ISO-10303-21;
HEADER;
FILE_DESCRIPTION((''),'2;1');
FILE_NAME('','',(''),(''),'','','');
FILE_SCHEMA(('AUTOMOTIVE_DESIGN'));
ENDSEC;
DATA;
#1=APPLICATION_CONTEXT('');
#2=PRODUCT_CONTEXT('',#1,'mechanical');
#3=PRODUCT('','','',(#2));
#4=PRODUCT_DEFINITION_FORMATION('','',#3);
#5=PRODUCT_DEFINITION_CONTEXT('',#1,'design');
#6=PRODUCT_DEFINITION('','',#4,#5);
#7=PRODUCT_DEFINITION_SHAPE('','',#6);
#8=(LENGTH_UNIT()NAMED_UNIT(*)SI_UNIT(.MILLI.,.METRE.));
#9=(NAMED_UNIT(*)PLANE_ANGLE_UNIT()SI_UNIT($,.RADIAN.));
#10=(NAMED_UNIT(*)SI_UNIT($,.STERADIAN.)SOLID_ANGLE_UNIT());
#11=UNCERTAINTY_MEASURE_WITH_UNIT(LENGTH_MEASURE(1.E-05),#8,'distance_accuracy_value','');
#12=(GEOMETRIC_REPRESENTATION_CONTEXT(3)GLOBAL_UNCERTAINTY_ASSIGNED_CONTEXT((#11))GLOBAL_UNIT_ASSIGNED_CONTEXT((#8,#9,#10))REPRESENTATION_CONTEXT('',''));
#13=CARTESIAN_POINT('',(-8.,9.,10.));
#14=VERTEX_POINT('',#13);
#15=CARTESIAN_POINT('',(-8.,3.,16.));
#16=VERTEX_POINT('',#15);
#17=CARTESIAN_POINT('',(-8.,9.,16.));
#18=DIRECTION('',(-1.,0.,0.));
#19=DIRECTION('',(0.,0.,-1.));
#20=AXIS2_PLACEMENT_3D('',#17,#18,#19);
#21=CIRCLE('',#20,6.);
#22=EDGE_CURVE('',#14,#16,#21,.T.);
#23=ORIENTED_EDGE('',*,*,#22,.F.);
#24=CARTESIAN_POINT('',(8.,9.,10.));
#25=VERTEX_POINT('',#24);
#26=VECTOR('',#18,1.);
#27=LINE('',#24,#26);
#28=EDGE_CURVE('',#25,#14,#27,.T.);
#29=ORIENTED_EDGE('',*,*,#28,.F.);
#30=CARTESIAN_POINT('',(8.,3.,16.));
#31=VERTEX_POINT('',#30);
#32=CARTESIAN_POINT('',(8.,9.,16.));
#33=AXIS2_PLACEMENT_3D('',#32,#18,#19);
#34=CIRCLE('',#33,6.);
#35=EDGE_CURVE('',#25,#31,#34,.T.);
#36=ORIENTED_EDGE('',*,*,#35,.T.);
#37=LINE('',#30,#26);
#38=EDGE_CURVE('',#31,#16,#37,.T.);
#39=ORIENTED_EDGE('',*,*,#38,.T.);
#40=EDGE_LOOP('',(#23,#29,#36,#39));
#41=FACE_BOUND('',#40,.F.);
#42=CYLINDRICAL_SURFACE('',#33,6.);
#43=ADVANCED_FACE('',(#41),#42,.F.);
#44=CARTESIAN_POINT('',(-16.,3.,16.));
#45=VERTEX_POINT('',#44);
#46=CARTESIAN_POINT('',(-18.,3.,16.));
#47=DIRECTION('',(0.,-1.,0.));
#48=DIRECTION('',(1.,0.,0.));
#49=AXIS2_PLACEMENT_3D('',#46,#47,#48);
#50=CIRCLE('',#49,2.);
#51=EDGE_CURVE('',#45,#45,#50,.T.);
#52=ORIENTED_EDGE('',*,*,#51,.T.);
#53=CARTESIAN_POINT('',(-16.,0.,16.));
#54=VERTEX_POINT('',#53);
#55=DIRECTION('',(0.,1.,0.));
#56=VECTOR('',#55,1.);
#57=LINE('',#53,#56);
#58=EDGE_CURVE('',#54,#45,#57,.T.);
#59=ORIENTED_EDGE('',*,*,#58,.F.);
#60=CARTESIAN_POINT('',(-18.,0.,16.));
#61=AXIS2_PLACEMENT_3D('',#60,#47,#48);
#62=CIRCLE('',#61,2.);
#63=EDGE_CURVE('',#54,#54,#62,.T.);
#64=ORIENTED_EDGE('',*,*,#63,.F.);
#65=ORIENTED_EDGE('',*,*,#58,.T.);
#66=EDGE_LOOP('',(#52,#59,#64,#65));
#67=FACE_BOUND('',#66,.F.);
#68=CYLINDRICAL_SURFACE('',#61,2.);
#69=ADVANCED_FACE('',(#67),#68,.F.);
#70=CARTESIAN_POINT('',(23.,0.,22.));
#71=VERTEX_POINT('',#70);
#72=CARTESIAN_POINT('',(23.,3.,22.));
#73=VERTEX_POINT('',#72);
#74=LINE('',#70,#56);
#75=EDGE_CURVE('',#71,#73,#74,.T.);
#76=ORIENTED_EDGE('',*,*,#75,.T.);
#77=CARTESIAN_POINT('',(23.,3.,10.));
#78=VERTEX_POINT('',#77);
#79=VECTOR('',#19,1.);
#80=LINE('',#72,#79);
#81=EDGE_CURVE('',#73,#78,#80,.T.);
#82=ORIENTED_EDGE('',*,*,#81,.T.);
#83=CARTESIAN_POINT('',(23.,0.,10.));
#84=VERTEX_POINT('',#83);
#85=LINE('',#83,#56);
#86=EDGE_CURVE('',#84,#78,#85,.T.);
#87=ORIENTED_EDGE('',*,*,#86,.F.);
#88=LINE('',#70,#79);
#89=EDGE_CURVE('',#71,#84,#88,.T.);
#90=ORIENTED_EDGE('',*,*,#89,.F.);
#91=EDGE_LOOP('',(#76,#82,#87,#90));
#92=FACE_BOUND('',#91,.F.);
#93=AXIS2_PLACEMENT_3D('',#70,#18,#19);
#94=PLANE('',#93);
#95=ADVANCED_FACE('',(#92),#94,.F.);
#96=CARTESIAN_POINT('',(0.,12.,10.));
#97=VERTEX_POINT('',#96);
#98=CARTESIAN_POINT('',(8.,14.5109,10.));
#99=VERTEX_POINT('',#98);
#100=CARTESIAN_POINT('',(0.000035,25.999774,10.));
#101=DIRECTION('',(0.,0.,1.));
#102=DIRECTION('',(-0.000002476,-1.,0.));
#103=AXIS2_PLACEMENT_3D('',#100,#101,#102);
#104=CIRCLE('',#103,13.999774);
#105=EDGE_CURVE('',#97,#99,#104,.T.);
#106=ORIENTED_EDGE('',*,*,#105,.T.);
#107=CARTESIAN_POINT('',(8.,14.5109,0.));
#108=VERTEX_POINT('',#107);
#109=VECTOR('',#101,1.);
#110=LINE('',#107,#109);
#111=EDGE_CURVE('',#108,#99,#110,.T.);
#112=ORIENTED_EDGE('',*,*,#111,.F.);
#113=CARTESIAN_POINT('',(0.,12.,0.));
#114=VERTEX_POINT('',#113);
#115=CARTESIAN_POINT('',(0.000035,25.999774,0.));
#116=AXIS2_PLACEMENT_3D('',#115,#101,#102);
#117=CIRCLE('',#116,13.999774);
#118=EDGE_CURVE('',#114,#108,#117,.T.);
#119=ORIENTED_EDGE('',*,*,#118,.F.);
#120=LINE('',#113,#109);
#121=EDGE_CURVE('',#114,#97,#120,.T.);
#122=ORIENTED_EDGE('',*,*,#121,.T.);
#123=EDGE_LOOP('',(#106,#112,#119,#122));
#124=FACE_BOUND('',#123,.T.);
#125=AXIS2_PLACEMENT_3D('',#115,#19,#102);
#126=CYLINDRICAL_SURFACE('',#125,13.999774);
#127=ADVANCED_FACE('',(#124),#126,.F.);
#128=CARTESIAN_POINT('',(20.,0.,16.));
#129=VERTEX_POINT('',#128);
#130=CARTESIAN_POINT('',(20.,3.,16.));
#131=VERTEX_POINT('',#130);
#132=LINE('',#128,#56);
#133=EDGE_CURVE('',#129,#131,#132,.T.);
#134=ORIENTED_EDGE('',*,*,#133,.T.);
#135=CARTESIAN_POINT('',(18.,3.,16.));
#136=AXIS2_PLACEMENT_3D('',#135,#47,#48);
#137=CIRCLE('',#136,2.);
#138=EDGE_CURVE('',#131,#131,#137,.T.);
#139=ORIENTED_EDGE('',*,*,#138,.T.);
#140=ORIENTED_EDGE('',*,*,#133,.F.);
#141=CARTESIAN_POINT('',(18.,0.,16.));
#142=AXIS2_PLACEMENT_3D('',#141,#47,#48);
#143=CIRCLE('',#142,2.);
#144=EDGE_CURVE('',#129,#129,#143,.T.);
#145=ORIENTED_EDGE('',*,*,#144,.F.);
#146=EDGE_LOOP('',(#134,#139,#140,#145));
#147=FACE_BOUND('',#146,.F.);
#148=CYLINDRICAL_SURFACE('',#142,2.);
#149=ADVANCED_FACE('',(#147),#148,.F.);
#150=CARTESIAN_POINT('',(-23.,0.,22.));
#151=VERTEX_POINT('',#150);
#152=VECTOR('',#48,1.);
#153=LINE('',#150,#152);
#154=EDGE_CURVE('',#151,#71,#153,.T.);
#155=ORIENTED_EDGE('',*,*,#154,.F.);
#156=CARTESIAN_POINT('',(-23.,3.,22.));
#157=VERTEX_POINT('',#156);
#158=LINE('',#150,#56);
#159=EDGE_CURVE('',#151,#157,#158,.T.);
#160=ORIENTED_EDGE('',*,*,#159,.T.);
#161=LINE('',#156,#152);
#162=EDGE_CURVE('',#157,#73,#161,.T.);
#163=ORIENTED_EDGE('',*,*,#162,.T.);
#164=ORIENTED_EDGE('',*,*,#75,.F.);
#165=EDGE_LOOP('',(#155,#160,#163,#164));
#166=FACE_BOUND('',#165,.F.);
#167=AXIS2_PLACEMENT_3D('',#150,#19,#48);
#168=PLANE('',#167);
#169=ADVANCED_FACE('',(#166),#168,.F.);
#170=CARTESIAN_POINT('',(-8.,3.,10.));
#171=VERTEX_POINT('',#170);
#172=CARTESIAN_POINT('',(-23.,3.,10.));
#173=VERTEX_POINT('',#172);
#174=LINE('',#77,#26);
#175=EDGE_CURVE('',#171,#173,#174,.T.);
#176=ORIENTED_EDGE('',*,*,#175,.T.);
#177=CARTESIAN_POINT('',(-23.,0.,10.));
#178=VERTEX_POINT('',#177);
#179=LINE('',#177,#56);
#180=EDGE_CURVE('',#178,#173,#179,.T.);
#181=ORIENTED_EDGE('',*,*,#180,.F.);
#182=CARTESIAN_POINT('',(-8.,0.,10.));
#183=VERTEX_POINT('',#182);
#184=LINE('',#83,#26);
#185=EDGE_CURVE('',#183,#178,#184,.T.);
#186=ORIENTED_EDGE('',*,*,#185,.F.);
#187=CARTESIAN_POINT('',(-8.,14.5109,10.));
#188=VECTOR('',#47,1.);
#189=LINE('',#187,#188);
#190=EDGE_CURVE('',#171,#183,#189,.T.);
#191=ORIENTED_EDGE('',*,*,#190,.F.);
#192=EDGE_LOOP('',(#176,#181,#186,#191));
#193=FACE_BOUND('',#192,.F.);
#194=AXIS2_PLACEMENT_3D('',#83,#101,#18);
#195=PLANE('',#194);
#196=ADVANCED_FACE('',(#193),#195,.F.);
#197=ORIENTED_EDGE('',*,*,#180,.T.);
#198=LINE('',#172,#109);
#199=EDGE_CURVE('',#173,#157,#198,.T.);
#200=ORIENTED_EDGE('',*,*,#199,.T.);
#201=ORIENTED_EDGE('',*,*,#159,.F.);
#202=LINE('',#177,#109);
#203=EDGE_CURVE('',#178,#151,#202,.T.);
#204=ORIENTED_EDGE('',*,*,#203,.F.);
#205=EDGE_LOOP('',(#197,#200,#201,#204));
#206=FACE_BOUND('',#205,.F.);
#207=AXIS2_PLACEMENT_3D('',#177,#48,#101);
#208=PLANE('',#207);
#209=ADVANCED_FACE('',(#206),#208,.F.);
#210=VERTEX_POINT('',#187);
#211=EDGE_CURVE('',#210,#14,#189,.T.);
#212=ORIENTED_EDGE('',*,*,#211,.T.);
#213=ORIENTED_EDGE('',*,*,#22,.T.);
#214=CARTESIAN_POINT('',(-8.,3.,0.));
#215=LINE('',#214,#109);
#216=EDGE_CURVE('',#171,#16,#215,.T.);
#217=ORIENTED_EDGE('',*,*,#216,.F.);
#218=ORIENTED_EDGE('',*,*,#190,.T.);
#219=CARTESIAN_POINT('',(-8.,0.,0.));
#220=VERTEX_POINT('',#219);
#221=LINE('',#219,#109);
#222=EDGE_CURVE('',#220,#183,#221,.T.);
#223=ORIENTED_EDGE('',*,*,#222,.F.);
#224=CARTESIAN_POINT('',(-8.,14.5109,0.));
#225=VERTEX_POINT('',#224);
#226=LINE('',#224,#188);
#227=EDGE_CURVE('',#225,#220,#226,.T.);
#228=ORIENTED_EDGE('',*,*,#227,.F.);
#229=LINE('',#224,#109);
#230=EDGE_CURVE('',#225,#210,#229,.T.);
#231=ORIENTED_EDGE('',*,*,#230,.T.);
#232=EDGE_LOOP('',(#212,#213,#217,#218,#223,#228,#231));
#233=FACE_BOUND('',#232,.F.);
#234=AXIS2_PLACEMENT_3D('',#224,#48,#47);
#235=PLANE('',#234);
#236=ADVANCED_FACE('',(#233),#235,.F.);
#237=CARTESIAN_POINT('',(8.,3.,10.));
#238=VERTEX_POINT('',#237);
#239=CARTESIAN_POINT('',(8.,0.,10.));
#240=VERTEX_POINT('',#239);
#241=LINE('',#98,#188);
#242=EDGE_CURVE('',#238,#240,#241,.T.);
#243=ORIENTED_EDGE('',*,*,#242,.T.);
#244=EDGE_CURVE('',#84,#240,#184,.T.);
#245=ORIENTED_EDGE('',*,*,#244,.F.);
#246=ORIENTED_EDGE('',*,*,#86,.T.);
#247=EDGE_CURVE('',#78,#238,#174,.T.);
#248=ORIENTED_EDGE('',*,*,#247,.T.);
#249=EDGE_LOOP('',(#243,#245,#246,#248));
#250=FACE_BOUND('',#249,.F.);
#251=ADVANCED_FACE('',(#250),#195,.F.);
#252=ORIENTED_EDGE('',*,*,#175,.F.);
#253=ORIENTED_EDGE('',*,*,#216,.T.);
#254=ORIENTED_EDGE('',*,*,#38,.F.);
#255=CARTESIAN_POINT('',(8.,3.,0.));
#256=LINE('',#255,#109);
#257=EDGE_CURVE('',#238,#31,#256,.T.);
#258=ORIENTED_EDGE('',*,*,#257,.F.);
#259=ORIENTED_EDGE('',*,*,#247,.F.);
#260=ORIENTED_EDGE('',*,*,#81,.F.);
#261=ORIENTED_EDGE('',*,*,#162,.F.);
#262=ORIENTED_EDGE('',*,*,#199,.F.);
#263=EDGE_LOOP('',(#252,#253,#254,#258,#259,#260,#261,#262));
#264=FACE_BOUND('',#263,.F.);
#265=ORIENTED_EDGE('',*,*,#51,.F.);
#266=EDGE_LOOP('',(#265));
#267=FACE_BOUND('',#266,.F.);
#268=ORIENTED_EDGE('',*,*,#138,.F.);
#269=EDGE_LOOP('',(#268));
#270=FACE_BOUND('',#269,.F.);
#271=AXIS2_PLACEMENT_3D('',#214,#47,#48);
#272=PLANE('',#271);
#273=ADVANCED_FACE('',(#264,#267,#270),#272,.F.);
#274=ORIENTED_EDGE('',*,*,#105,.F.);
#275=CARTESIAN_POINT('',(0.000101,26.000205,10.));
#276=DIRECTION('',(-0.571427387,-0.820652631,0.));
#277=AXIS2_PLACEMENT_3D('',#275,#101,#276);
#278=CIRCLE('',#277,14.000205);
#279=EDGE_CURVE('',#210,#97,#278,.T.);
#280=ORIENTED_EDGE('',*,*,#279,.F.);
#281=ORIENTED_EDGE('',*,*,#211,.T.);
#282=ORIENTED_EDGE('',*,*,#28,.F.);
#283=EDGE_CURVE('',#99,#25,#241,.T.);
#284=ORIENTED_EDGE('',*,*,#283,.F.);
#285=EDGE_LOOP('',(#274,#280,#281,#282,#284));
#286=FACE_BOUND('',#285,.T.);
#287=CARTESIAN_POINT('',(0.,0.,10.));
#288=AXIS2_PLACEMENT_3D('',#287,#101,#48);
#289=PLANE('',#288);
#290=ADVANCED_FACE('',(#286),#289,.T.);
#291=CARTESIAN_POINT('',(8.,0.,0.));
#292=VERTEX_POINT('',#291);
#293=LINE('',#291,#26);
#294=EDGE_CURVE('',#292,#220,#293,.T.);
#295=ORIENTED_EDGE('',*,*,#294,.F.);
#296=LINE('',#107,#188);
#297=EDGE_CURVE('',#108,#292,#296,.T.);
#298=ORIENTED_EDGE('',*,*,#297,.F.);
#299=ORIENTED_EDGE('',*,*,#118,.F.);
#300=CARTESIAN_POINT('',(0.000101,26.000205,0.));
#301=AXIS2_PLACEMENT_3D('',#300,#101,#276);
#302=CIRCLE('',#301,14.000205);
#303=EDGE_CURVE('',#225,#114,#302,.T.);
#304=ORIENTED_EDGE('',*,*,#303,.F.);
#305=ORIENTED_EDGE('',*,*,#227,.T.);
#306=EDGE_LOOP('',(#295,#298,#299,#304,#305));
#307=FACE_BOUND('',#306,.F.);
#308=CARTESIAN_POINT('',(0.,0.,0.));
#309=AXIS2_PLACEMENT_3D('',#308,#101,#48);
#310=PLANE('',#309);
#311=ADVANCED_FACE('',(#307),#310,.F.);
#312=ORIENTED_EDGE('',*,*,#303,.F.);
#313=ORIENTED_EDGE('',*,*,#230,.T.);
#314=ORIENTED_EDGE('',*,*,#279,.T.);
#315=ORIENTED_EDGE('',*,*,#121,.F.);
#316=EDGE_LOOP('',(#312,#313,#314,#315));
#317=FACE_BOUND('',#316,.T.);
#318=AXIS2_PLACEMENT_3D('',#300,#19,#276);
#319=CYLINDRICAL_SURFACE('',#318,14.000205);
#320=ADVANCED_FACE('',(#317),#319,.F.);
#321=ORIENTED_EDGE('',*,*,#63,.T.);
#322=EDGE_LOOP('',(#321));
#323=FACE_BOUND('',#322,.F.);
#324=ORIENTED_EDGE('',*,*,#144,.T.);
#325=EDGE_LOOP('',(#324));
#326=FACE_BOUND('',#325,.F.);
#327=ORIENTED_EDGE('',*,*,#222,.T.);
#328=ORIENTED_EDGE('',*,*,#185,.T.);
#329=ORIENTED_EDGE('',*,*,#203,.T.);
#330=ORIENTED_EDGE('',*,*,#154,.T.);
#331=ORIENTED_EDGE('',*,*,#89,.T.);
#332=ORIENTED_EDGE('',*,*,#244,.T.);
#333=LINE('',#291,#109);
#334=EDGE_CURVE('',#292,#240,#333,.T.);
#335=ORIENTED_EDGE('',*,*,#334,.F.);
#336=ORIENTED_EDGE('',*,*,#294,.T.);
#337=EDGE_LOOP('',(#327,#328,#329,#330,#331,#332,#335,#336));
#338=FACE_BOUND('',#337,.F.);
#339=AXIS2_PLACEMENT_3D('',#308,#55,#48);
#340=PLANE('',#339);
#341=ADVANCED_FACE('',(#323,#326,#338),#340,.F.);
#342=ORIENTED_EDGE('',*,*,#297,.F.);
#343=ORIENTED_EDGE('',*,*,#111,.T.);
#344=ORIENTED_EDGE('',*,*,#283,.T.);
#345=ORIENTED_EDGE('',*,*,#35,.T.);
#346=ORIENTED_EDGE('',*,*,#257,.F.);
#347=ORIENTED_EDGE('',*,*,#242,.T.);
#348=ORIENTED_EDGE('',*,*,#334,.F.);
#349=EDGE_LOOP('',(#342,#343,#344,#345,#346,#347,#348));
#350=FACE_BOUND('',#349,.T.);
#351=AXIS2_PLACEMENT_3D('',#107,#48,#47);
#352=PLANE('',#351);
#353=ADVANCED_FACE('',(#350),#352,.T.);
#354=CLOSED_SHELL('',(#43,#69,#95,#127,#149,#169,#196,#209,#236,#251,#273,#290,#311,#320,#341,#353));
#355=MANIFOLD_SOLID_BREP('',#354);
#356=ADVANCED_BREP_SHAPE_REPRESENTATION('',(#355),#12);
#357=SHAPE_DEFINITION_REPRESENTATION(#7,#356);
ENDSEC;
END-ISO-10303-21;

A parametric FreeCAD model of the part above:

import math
import FreeCAD as App
import Part
import Sketcher

V = App.Vector


def edges_at(feature, points):
    """Names of the edges that pass closest to the given points."""
    edges = feature.Shape.Edges
    near = lambda p: min(range(len(edges)), key=lambda i: edges[i].distToShape(Part.Vertex(*p))[0])
    return sorted({f"Edge{near(p) + 1}" for p in points})


def add_polygon(sketch, points):
    """Adds a closed chain of lines whose ends are joined by coincident constraints."""
    first, n = sketch.GeometryCount, len(points)
    for a, b in zip(points, points[1:] + points[:1]):
        sketch.addGeometry(Part.LineSegment(App.Vector(*a, 0), App.Vector(*b, 0)), False)
    for i in range(n):
        sketch.addConstraint(Sketcher.Constraint("Coincident", first + i, 2, first + (i + 1) % n, 1))

doc = App.newDocument("Part")
body = doc.addObject("PartDesign::Body", "Body")

sketch1 = body.newObject("Sketcher::SketchObject", "Sketch")
sketch1.AttachmentSupport = (doc.getObject("XY_Plane"), [""])
sketch1.MapMode = "FlatFace"
sketch1.addGeometry([
    Part.ArcOfCircle(Part.Circle(V(0, 26, 0), V(0, 0, 1), 14), math.radians(-90), math.radians(-55)),
    Part.ArcOfCircle(Part.Circle(V(0, 26, 0), V(0, 0, 1), 14), math.radians(-125), math.radians(-90)),
    Part.LineSegment(V(-8, 15, 0), V(-8, 0, 0)),
    Part.LineSegment(V(-8, 0, 0), V(8, 0, 0)),
    Part.LineSegment(V(8, 0, 0), V(8, 15, 0)),
], False)
sketch1.addConstraint([
    Sketcher.Constraint("Tangent", 0, 1, 1, 2),
    Sketcher.Constraint("Coincident", 1, 1, 2, 1),
    Sketcher.Constraint("Coincident", 2, 2, 3, 1),
    Sketcher.Constraint("Coincident", 3, 2, 4, 1),
    Sketcher.Constraint("Coincident", 4, 2, 0, 2),
    Sketcher.Constraint("Vertical", 2),
    Sketcher.Constraint("Horizontal", 3),
    Sketcher.Constraint("Vertical", 4),
    Sketcher.Constraint("Equal", 0, 1),
    Sketcher.Constraint("Symmetric", 2, 2, 3, 2, -1, 1),
    Sketcher.Constraint("PointOnObject", 0, 3, -2),
    Sketcher.Constraint("PointOnObject", 0, 1, -2),
    Sketcher.Constraint("Radius", 0, 14.0),
    Sketcher.Constraint("DistanceY", -1, 1, 0, 3, 26.0),
    Sketcher.Constraint("DistanceX", 1, 1, -1, 1, 8.0),
])
pad1 = body.newObject("PartDesign::Pad", "Pad")
pad1.Profile = sketch1
pad1.Length = 10

sketch2 = body.newObject("Sketcher::SketchObject", "Sketch001")
sketch2.AttachmentSupport = (doc.getObject("XZ_Plane"), [""])
sketch2.MapMode = "FlatFace"
add_polygon(sketch2, [(23, 22), (-23, 22), (-23, 10), (23, 10)])
sketch2.addGeometry(Part.Circle(V(-18, 16, 0), V(0, 0, 1), 2), False)
sketch2.addGeometry(Part.Circle(V(18, 16, 0), V(0, 0, 1), 2), False)
sketch2.addConstraint([
    Sketcher.Constraint("Horizontal", 0),
    Sketcher.Constraint("Vertical", 1),
    Sketcher.Constraint("Horizontal", 2),
    Sketcher.Constraint("Vertical", 3),
    Sketcher.Constraint("Equal", 4, 5),
    Sketcher.Constraint("Symmetric", 4, 3, 5, 3, -2),
    Sketcher.Constraint("Diameter", 4, 4.0),
    Sketcher.Constraint("DistanceX", 0, 2, 0, 1, 46.0),
    Sketcher.Constraint("DistanceX", 4, 3, 5, 3, 36.0),
    Sketcher.Constraint("DistanceY", 4, 3, 0, 2, 6.0),
    Sketcher.Constraint("DistanceY", 1, 2, 4, 3, 6.0),
    Sketcher.Constraint("DistanceY", -1, 1, 4, 3, 16.0),
    Sketcher.Constraint("DistanceX", 0, 2, -1, 1, 23.0),
])
pad2 = body.newObject("PartDesign::Pad", "Pad001")
pad2.Profile = sketch2
pad2.Length = 3
pad2.Reversed = True
doc.recompute()

fillet = body.newObject("PartDesign::Fillet", "Fillet")
fillet.Base = (pad2, edges_at(pad2, [(0, 3, 10)]))
fillet.Radius = 6

doc.recompute()
